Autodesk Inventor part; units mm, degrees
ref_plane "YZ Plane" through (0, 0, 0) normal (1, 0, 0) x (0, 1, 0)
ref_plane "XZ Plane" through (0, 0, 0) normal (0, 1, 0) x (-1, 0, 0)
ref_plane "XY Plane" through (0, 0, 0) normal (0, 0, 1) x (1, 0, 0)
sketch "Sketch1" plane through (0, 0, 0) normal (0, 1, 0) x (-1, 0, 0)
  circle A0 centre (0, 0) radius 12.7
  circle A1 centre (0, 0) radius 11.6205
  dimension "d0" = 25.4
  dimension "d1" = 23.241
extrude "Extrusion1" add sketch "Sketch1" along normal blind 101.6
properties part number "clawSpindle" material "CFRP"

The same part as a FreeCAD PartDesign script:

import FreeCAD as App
import Part
import Sketcher
Q = App.Units.Quantity

doc = App.newDocument("Part")
params = doc.addObject("Spreadsheet::Sheet", "Params")
for row, (alias, value) in enumerate([
    ("sketch1_diameter", "1 in"),
    ("sketch1_diameter2", "0.915 in"),
    ("pad1_length", "4 in"),
], start=1):
    params.set(f"A{row}", alias)
    params.set(f"B{row}", "=" + value)
    params.setAlias(f"B{row}", alias)

body = doc.addObject("PartDesign::Body", "Body")

sketch1 = body.newObject("Sketcher::SketchObject", "Sketch")
sketch1.AttachmentSupport = (doc.getObject("XZ_Plane"), [""])
sketch1.MapMode = "FlatFace"
sketch1.addGeometry([
    Part.Circle(App.Vector(0, 0, 0), App.Vector(0, 0, 1), 12.7),
    Part.Circle(App.Vector(0, 0, 0), App.Vector(0, 0, 1), 11.6205),
], False)
sketch1.addConstraint([
    Sketcher.Constraint("Coincident", 0, 3, -1, 1),
    Sketcher.Constraint("Coincident", 1, 3, -1, 1),
    Sketcher.Constraint("Diameter", 0, Q("1 in")),
    Sketcher.Constraint("Diameter", 1, Q("0.915 in")),
])
sketch1.setExpression("Constraints[2]", "Params.sketch1_diameter")
sketch1.setExpression("Constraints[3]", "Params.sketch1_diameter2")
pad1 = body.newObject("PartDesign::Pad", "Pad")
pad1.Profile = sketch1
pad1.setExpression("Length", "Params.pad1_length")
pad1.Reversed = True

doc.recompute()
